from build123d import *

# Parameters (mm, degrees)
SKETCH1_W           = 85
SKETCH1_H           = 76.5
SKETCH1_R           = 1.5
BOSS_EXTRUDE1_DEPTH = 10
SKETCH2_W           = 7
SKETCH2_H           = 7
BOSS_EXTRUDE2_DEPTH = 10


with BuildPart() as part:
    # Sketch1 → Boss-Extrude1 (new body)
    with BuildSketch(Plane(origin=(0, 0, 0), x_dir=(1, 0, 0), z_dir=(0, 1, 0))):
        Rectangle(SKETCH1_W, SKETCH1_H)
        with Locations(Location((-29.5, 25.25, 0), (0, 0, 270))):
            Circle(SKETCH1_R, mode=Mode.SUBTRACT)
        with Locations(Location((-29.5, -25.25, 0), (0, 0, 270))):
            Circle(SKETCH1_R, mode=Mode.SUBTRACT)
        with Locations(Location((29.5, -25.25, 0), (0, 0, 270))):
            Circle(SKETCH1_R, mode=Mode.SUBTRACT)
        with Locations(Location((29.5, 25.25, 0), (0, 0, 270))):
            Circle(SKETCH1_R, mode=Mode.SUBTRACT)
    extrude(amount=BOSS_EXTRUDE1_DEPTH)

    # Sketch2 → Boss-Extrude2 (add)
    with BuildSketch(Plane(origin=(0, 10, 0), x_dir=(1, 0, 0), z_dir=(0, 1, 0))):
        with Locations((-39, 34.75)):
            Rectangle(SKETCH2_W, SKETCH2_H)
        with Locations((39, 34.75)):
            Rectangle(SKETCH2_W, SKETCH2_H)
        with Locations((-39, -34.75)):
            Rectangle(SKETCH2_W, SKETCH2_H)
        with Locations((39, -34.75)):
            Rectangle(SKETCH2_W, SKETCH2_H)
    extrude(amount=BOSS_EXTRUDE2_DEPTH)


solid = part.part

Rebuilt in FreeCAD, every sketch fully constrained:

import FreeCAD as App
import Part
import Sketcher
from FreeCAD import Vector


def add_polygon(sketch, points):
    """Adds a closed chain of lines whose ends are joined by coincident constraints."""
    first, n = sketch.GeometryCount, len(points)
    for a, b in zip(points, points[1:] + points[:1]):
        sketch.addGeometry(Part.LineSegment(App.Vector(*a, 0), App.Vector(*b, 0)), False)
    for i in range(n):
        sketch.addConstraint(Sketcher.Constraint("Coincident", first + i, 2, first + (i + 1) % n, 1))

doc = App.newDocument("Part")
body = doc.addObject("PartDesign::Body", "Body")

sketch1 = body.newObject("Sketcher::SketchObject", "Sketch")
sketch1.AttachmentSupport = (doc.getObject("XZ_Plane"), [""])
sketch1.MapMode = "FlatFace"
add_polygon(sketch1, [(-42.5, -38.2), (-42.5, 38.2), (42.5, 38.2), (42.5, -38.2)])
sketch1.addGeometry(Part.Circle(Vector(-29.5, 25.2, 0), Vector(0, 0, 1), 1.5), False)
sketch1.addGeometry(Part.Circle(Vector(29.5, 25.2, 0), Vector(0, 0, 1), 1.5), False)
sketch1.addGeometry(Part.Circle(Vector(-29.5, -25.2, 0), Vector(0, 0, 1), 1.5), False)
sketch1.addGeometry(Part.Circle(Vector(29.5, -25.2, 0), Vector(0, 0, 1), 1.5), False)
sketch1.addConstraint(Sketcher.Constraint("Vertical", 0))
sketch1.addConstraint(Sketcher.Constraint("Horizontal", 1))
sketch1.addConstraint(Sketcher.Constraint("Vertical", 2))
sketch1.addConstraint(Sketcher.Constraint("Horizontal", 3))
sketch1.addConstraint(Sketcher.Constraint("Equal", 4, 5))
sketch1.addConstraint(Sketcher.Constraint("Equal", 5, 6))
sketch1.addConstraint(Sketcher.Constraint("Equal", 6, 7))
sketch1.addConstraint(Sketcher.Constraint("Symmetric", 5, 3, 6, 3, -1, 1))
sketch1.addConstraint(Sketcher.Constraint("Symmetric", 4, 3, 7, 3, -1, 1))
sketch1.addConstraint(Sketcher.Constraint("Symmetric", 0, 2, 2, 2, -1, 1))
sketch1.addConstraint(Sketcher.Constraint("Symmetric", 4, 3, 5, 3, -2))
sketch1.addConstraint(Sketcher.Constraint("Diameter", 4, 3.0))
sketch1.addConstraint(Sketcher.Constraint("DistanceX", 1, 1, 1, 2, 85.0))
sketch1.addConstraint(Sketcher.Constraint("DistanceY", 0, 1, 0, 2, 76.5))
sketch1.addConstraint(Sketcher.Constraint("DistanceX", 4, 3, 5, 3, 59.0))
sketch1.addConstraint(Sketcher.Constraint("DistanceY", 4, 3, 0, 2, 13.0))
pad1 = body.newObject("PartDesign::Pad", "Pad")
pad1.Profile = sketch1
pad1.Length = 10
pad1.Reversed = True

sketch2 = body.newObject("Sketcher::SketchObject", "Sketch001")
sketch2.AttachmentSupport = (doc.getObject("XZ_Plane"), [""])
sketch2.MapMode = "FlatFace"
sketch2.AttachmentOffset = App.Placement(Vector(0, 0, -10), App.Rotation())
add_polygon(sketch2, [(-42, -38), (-42, -31), (-36, -31), (-36, -38)])
add_polygon(sketch2, [(36, -38), (36, -31), (42, -31), (42, -38)])
add_polygon(sketch2, [(-42, 31), (-42, 38), (-36, 38), (-36, 31)])
add_polygon(sketch2, [(36, 31), (36, 38), (42, 38), (42, 31)])
sketch2.addConstraint(Sketcher.Constraint("Vertical", 0))
sketch2.addConstraint(Sketcher.Constraint("Horizontal", 1))
sketch2.addConstraint(Sketcher.Constraint("Vertical", 2))
sketch2.addConstraint(Sketcher.Constraint("Horizontal", 3))
sketch2.addConstraint(Sketcher.Constraint("Vertical", 4))
sketch2.addConstraint(Sketcher.Constraint("Horizontal", 5))
sketch2.addConstraint(Sketcher.Constraint("Vertical", 6))
sketch2.addConstraint(Sketcher.Constraint("Horizontal", 7))
sketch2.addConstraint(Sketcher.Constraint("Vertical", 8))
sketch2.addConstraint(Sketcher.Constraint("Horizontal", 9))
sketch2.addConstraint(Sketcher.Constraint("Vertical", 10))
sketch2.addConstraint(Sketcher.Constraint("Horizontal", 11))
sketch2.addConstraint(Sketcher.Constraint("Vertical", 12))
sketch2.addConstraint(Sketcher.Constraint("Horizontal", 13))
sketch2.addConstraint(Sketcher.Constraint("Vertical", 14))
sketch2.addConstraint(Sketcher.Constraint("Horizontal", 15))
sketch2.addConstraint(Sketcher.Constraint("Symmetric", 6, 2, 8, 2, -1, 1))
sketch2.addConstraint(Sketcher.Constraint("Symmetric", 4, 2, 10, 2, -1, 1))
sketch2.addConstraint(Sketcher.Constraint("Symmetric", 2, 2, 12, 2, -1, 1))
sketch2.addConstraint(Sketcher.Constraint("Symmetric", 0, 2, 14, 2, -1, 1))
sketch2.addConstraint(Sketcher.Constraint("Symmetric", 1, 2, 4, 2, -2))
sketch2.addConstraint(Sketcher.Constraint("Symmetric", 3, 2, 6, 2, -2))
sketch2.addConstraint(Sketcher.Constraint("Equal", 15, 0))
sketch2.addConstraint(Sketcher.Constraint("DistanceX", 1, 1, 1, 2, 7.0))
sketch2.addConstraint(Sketcher.Constraint("DistanceX", 1, 2, 4, 2, 71.0))
sketch2.addConstraint(Sketcher.Constraint("DistanceY", 0, 2, 8, 2, 69.5))
pad2 = body.newObject("PartDesign::Pad", "Pad001")
pad2.Profile = sketch2
pad2.Length = 10
pad2.Reversed = True

doc.recompute()
